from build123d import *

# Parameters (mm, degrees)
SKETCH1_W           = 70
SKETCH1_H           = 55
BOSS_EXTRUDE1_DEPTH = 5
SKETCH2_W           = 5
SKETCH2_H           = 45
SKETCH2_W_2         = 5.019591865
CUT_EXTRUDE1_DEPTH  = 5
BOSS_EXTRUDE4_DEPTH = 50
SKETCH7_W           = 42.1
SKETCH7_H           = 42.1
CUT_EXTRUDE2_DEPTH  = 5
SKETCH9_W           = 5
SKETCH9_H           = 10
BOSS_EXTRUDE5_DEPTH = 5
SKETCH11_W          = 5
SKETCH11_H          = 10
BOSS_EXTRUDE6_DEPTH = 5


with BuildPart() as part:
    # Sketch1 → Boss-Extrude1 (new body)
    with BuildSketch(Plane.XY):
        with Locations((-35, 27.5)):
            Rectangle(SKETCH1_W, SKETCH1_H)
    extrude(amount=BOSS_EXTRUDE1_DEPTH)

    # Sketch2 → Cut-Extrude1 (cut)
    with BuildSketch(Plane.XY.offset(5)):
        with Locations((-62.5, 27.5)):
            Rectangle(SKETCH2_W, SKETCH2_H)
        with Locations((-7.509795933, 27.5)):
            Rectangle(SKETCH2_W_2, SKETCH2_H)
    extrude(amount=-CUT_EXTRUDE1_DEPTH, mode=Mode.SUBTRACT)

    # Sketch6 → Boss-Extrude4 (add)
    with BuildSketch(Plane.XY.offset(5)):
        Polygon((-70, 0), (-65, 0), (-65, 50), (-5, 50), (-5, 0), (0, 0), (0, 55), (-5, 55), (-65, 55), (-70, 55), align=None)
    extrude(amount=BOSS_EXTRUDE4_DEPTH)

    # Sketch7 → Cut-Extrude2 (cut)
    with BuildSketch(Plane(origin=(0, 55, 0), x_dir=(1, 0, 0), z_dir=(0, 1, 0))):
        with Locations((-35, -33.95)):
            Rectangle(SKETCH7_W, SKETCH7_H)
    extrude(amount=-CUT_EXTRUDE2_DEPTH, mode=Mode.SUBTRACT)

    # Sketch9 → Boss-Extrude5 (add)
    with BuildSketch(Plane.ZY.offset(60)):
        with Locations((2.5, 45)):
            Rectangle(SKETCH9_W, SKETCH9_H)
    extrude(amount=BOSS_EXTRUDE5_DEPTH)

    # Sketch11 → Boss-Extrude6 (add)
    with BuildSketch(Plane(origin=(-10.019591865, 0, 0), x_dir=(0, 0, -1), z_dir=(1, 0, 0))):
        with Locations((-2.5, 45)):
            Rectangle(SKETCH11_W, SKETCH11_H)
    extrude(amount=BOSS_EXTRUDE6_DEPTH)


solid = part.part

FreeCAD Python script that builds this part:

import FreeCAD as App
import Part
import Sketcher
Q = App.Units.Quantity


def add_polygon(sketch, points):
    """Adds a closed chain of lines whose ends are joined by coincident constraints."""
    first, n = sketch.GeometryCount, len(points)
    for a, b in zip(points, points[1:] + points[:1]):
        sketch.addGeometry(Part.LineSegment(App.Vector(*a, 0), App.Vector(*b, 0)), False)
    for i in range(n):
        sketch.addConstraint(Sketcher.Constraint("Coincident", first + i, 2, first + (i + 1) % n, 1))

doc = App.newDocument("Part")
body = doc.addObject("PartDesign::Body", "Body")

# Sketch on XY plane
sketch1 = body.newObject("Sketcher::SketchObject", "Sketch")
sketch1.AttachmentSupport = (doc.getObject("XY_Plane"), [""])
sketch1.MapMode = "FlatFace"
add_polygon(sketch1, [(-70, 55), (-70, 0), (0, 0), (0, 55)])  # lines 0-3
sketch1.addConstraint(Sketcher.Constraint("Vertical", 0))
sketch1.addConstraint(Sketcher.Constraint("Horizontal", 1))
sketch1.addConstraint(Sketcher.Constraint("Vertical", 2))
sketch1.addConstraint(Sketcher.Constraint("Horizontal", 3))
sketch1.addConstraint(Sketcher.Constraint("Coincident", 1, 2, -1, 1))
sketch1.addConstraint(Sketcher.Constraint("DistanceX", 1, 1, 1, 2, Q("70 mm")))
sketch1.addConstraint(Sketcher.Constraint("DistanceY", 0, 2, 0, 1, Q("55 mm")))
pad1 = body.newObject("PartDesign::Pad", "Pad")
pad1.Profile = sketch1
pad1.Length = 5

# Sketch on XY plane
sketch2 = body.newObject("Sketcher::SketchObject", "Sketch001")
sketch2.AttachmentSupport = (doc.getObject("XY_Plane"), [""])
sketch2.MapMode = "FlatFace"
sketch2.AttachmentOffset = App.Placement(App.Vector(0, 0, 5), App.Rotation())
add_polygon(sketch2, [(-65, 50), (-65, 5), (-60, 5), (-60, 50)])  # lines 0-3
add_polygon(sketch2, [(-10, 50), (-10, 5), (-5, 5), (-5, 50)])  # lines 4-7
sketch2.addConstraint(Sketcher.Constraint("Vertical", 0))
sketch2.addConstraint(Sketcher.Constraint("Horizontal", 1))
sketch2.addConstraint(Sketcher.Constraint("Vertical", 2))
sketch2.addConstraint(Sketcher.Constraint("Horizontal", 3))
sketch2.addConstraint(Sketcher.Constraint("Vertical", 4))
sketch2.addConstraint(Sketcher.Constraint("Horizontal", 5))
sketch2.addConstraint(Sketcher.Constraint("Vertical", 6))
sketch2.addConstraint(Sketcher.Constraint("Horizontal", 7))
sketch2.addConstraint(Sketcher.Constraint("Horizontal", 1, 2, 4, 2))
sketch2.addConstraint(Sketcher.Constraint("Horizontal", 3, 2, 6, 2))
sketch2.addConstraint(Sketcher.Constraint("DistanceX", 1, 1, 1, 2, Q("5 mm")))
sketch2.addConstraint(Sketcher.Constraint("DistanceY", 0, 2, 0, 1, Q("45 mm")))
sketch2.addConstraint(Sketcher.Constraint("DistanceX", 0, 2, -1, 1, Q("65 mm")))
sketch2.addConstraint(Sketcher.Constraint("DistanceY", -1, 1, 0, 2, Q("5 mm")))
sketch2.addConstraint(Sketcher.Constraint("DistanceX", 5, 2, -1, 1, Q("5 mm")))
sketch2.addConstraint(Sketcher.Constraint("DistanceX", 5, 1, 5, 2, Q("5.019592 mm")))
pocket1 = body.newObject("PartDesign::Pocket", "Pocket")
pocket1.Profile = sketch2
pocket1.Length = 5

# Sketch on XY plane
sketch3 = body.newObject("Sketcher::SketchObject", "Sketch002")
sketch3.AttachmentSupport = (doc.getObject("XY_Plane"), [""])
sketch3.MapMode = "FlatFace"
sketch3.AttachmentOffset = App.Placement(App.Vector(0, 0, 5), App.Rotation())
add_polygon(sketch3, [(-70, 0), (-65, 0), (-65, 50), (-5, 50), (-5, 0), (0, 0), (0, 55), (-70, 55)])  # lines 0-7
sketch3.addConstraint(Sketcher.Constraint("Horizontal", 0))
sketch3.addConstraint(Sketcher.Constraint("Vertical", 1))
sketch3.addConstraint(Sketcher.Constraint("Horizontal", 2))
sketch3.addConstraint(Sketcher.Constraint("Vertical", 3))
sketch3.addConstraint(Sketcher.Constraint("Horizontal", 4))
sketch3.addConstraint(Sketcher.Constraint("Vertical", 5))
sketch3.addConstraint(Sketcher.Constraint("Horizontal", 6))
sketch3.addConstraint(Sketcher.Constraint("Vertical", 7))
sketch3.addConstraint(Sketcher.Constraint("Coincident", 4, 2, -1, 1))
sketch3.addConstraint(Sketcher.Constraint("PointOnObject", 0, 2, -1))
sketch3.addConstraint(Sketcher.Constraint("Equal", 0, 4))
sketch3.addConstraint(Sketcher.Constraint("DistanceX", 0, 1, 0, 2, Q("5 mm")))
sketch3.addConstraint(Sketcher.Constraint("DistanceX", 2, 1, 2, 2, Q("60 mm")))
sketch3.addConstraint(Sketcher.Constraint("DistanceY", 1, 1, 1, 2, Q("50 mm")))
sketch3.addConstraint(Sketcher.Constraint("DistanceY", 5, 1, 5, 2, Q("55 mm")))
pad2 = body.newObject("PartDesign::Pad", "Pad001")
pad2.Profile = sketch3
pad2.Length = 50

# Sketch on XZ plane
sketch4 = body.newObject("Sketcher::SketchObject", "Sketch003")
sketch4.AttachmentSupport = (doc.getObject("XZ_Plane"), [""])
sketch4.MapMode = "FlatFace"
sketch4.AttachmentOffset = App.Placement(App.Vector(0, 0, -55), App.Rotation())
add_polygon(sketch4, [(-56, 13), (-56, 55), (-14, 55), (-14, 13)])  # lines 0-3
sketch4.addConstraint(Sketcher.Constraint("Vertical", 0))
sketch4.addConstraint(Sketcher.Constraint("Horizontal", 1))
sketch4.addConstraint(Sketcher.Constraint("Vertical", 2))
sketch4.addConstraint(Sketcher.Constraint("Horizontal", 3))
sketch4.addConstraint(Sketcher.Constraint("Equal", 3, 0))
sketch4.addConstraint(Sketcher.Constraint("DistanceX", 1, 1, 1, 2, Q("42.1 mm")))
sketch4.addConstraint(Sketcher.Constraint("DistanceY", -1, 1, 0, 2, Q("55 mm")))
sketch4.addConstraint(Sketcher.Constraint("DistanceX", 0, 2, -1, 1, Q("56.05 mm")))
pocket2 = body.newObject("PartDesign::Pocket", "Pocket001")
pocket2.Profile = sketch4
pocket2.Length = 5
pocket2.Reversed = True

# Sketch on YZ plane
sketch5 = body.newObject("Sketcher::SketchObject", "Sketch004")
sketch5.AttachmentSupport = (doc.getObject("YZ_Plane"), [""])
sketch5.MapMode = "FlatFace"
sketch5.AttachmentOffset = App.Placement(App.Vector(0, 0, -60), App.Rotation())
add_polygon(sketch5, [(50, 0), (40, 0), (40, 5), (50, 5)])  # lines 0-3
sketch5.addConstraint(Sketcher.Constraint("Horizontal", 0))
sketch5.addConstraint(Sketcher.Constraint("Vertical", 1))
sketch5.addConstraint(Sketcher.Constraint("Horizontal", 2))
sketch5.addConstraint(Sketcher.Constraint("Vertical", 3))
sketch5.addConstraint(Sketcher.Constraint("PointOnObject", 0, 2, -1))
sketch5.addConstraint(Sketcher.Constraint("DistanceX", 0, 2, 0, 1, Q("10 mm")))
sketch5.addConstraint(Sketcher.Constraint("DistanceY", 1, 1, 1, 2, Q("5 mm")))
sketch5.addConstraint(Sketcher.Constraint("DistanceX", -1, 1, 0, 2, Q("40 mm")))
pad3 = body.newObject("PartDesign::Pad", "Pad002")
pad3.Profile = sketch5
pad3.Length = 5
pad3.Reversed = True

# Sketch on YZ plane
sketch6 = body.newObject("Sketcher::SketchObject", "Sketch005")
sketch6.AttachmentSupport = (doc.getObject("YZ_Plane"), [""])
sketch6.MapMode = "FlatFace"
sketch6.AttachmentOffset = App.Placement(App.Vector(0, 0, -10.019592), App.Rotation())
add_polygon(sketch6, [(50, 5), (40, 5), (40, 0), (50, 0)])  # lines 0-3
sketch6.addConstraint(Sketcher.Constraint("Horizontal", 0))
sketch6.addConstraint(Sketcher.Constraint("Vertical", 1))
sketch6.addConstraint(Sketcher.Constraint("Horizontal", 2))
sketch6.addConstraint(Sketcher.Constraint("Vertical", 3))
sketch6.addConstraint(Sketcher.Constraint("PointOnObject", 1, 2, -1))
sketch6.addConstraint(Sketcher.Constraint("DistanceX", 0, 2, 0, 1, Q("10 mm")))
sketch6.addConstraint(Sketcher.Constraint("DistanceY", 1, 2, 1, 1, Q("5 mm")))
sketch6.addConstraint(Sketcher.Constraint("DistanceX", -1, 1, 0, 2, Q("40 mm")))
pad4 = body.newObject("PartDesign::Pad", "Pad003")
pad4.Profile = sketch6
pad4.Length = 5

doc.recompute()
